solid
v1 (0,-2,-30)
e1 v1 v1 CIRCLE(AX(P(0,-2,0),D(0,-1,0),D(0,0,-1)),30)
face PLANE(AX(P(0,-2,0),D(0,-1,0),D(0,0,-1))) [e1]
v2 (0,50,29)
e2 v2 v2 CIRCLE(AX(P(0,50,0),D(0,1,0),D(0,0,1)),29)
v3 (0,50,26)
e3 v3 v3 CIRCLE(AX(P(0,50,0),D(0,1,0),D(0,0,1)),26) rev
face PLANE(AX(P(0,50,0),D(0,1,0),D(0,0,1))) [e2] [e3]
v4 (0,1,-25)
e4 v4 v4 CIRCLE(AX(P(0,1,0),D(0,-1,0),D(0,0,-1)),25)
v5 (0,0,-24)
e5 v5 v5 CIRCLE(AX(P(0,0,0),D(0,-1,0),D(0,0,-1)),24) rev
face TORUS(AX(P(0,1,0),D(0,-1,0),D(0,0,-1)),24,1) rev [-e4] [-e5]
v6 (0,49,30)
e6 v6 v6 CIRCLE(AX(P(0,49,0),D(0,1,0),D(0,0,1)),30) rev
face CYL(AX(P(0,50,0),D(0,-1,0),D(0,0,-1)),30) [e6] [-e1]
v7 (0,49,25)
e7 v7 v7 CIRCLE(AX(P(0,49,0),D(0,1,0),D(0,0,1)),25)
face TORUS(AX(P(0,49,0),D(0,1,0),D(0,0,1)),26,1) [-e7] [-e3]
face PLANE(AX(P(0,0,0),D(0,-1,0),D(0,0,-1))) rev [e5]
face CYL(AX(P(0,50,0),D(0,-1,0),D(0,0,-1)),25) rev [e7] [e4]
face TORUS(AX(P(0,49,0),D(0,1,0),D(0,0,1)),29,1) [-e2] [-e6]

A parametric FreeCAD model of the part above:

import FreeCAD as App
import Part
import Sketcher
from FreeCAD import Vector


def edges_at(feature, points):
    """Names of the edges that pass closest to the given points."""
    edges = feature.Shape.Edges
    near = lambda p: min(range(len(edges)), key=lambda i: edges[i].distToShape(Part.Vertex(*p))[0])
    return sorted({f"Edge{near(p) + 1}" for p in points})

doc = App.newDocument("Part")
body = doc.addObject("PartDesign::Body", "Body")

# Sketch on XZ plane
sketch1 = body.newObject("Sketcher::SketchObject", "Sketch")
sketch1.AttachmentSupport = (doc.getObject("XZ_Plane"), [""])
sketch1.MapMode = "FlatFace"
sketch1.addGeometry([
    Part.Circle(Vector(0, 0, 0), Vector(0, 0, 1), 30),
    Part.Circle(Vector(0, 0, 0), Vector(0, 0, 1), 25),
], False)
sketch1.addConstraint([
    Sketcher.Constraint("Coincident", 0, 3, -1, 1),
    Sketcher.Constraint("Coincident", 1, 3, -1, 1),
    Sketcher.Constraint("Diameter", 0, 60.0),
    Sketcher.Constraint("Diameter", 1, 50.0),
])
pad1 = body.newObject("PartDesign::Pad", "Pad")
pad1.Profile = sketch1
pad1.Length = 50
pad1.Reversed = True

# Sketch on XZ plane
sketch2 = body.newObject("Sketcher::SketchObject", "Sketch001")
sketch2.AttachmentSupport = (doc.getObject("XZ_Plane"), [""])
sketch2.MapMode = "FlatFace"
sketch2.AttachmentOffset = App.Placement(Vector(0, 0, 2), App.Rotation())
sketch2.addGeometry(Part.Circle(Vector(0, 0, 0), Vector(0, 0, 1), 30), False)
sketch2.addConstraint([
    Sketcher.Constraint("Coincident", 0, 3, -1, 1),
    Sketcher.Constraint("Diameter", 0, 60.0),
])
pad2 = body.newObject("PartDesign::Pad", "Pad001")
pad2.Profile = sketch2
pad2.Length = 2
pad2.Reversed = True
doc.recompute()

fillet = body.newObject("PartDesign::Fillet", "Fillet")
fillet.Base = (pad2, edges_at(pad2, [(0, 50, -30), (0, 0, -25), (0, 50, -25)]))
fillet.Radius = 1

doc.recompute()
